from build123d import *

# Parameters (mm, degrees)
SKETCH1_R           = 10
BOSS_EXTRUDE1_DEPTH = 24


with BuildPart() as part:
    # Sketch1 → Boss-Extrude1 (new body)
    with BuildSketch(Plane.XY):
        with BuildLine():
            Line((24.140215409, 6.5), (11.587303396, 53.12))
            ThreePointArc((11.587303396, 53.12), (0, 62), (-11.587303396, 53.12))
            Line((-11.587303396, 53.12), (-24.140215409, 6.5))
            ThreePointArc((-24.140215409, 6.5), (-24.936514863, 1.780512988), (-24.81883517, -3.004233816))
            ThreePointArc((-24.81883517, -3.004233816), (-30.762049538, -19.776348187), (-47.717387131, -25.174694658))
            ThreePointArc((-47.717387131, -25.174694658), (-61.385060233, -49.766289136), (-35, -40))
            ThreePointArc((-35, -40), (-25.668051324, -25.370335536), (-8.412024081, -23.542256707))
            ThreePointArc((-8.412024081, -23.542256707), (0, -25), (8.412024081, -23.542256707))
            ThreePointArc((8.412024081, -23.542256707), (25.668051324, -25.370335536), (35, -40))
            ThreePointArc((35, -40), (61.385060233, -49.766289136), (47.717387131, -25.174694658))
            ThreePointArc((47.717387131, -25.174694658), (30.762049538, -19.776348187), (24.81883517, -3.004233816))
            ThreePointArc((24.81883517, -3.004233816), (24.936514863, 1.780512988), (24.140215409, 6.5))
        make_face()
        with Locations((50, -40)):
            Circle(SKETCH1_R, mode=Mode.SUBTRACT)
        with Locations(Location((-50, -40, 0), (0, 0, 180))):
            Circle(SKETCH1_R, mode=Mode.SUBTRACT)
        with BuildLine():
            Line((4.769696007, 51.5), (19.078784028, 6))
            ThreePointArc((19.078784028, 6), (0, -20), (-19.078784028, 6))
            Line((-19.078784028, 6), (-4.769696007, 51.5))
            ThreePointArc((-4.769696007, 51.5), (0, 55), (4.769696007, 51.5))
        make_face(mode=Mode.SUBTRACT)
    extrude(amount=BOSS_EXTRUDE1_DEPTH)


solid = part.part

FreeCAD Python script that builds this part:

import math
import FreeCAD as App
import Part
import Sketcher

V = App.Vector
Q = App.Units.Quantity

doc = App.newDocument("Part")
body = doc.addObject("PartDesign::Body", "Body")

# Sketch on XY plane
sketch1 = body.newObject("Sketcher::SketchObject", "Sketch")
sketch1.AttachmentSupport = (doc.getObject("XY_Plane"), [""])
sketch1.MapMode = "FlatFace"
sketch1.addGeometry([
    Part.LineSegment(V(24.140215, 6.5, 0), V(11.587303, 53.12, 0)),  # 0
    Part.ArcOfCircle(Part.Circle(V(0, 50, 0), V(0, 0, 1), 12), math.radians(15.070062), math.radians(164.929938)),  # 1
    Part.LineSegment(V(-11.587303, 53.12, 0), V(-24.140215, 6.5, 0)),  # 2
    Part.ArcOfCircle(Part.Circle(V(0, 0, 0), V(0, 0, 1), 25), math.radians(164.929938), math.radians(186.901876)),  # 3
    Part.ArcOfCircle(Part.Circle(V(-44.673903, -5.407621, 0), V(0, 0, 1), 20), math.radians(-98.752945), math.radians(6.901876)),  # 4
    Part.ArcOfCircle(Part.Circle(V(-50, -40, 0), V(0, 0, 1), 15), math.radians(81.247055), math.radians(360)),  # 5
    Part.ArcOfCircle(Part.Circle(V(-15.141643, -42.376062, 0), V(0, 0, 1), 20), math.radians(70.33738), math.radians(173.176969)),  # 6
    Part.ArcOfCircle(Part.Circle(V(0, 0, 0), V(0, 0, 1), 25), math.radians(-109.66262), math.radians(-70.33738)),  # 7
    Part.ArcOfCircle(Part.Circle(V(15.141643, -42.376062, 0), V(0, 0, 1), 20), math.radians(6.823031), math.radians(109.66262)),  # 8
    Part.ArcOfCircle(Part.Circle(V(50, -40, 0), V(0, 0, 1), 15), math.radians(180), math.radians(458.752945)),  # 9
    Part.ArcOfCircle(Part.Circle(V(44.673903, -5.407621, 0), V(0, 0, 1), 20), math.radians(173.098124), math.radians(278.752945)),  # 10
    Part.ArcOfCircle(Part.Circle(V(0, 0, 0), V(0, 0, 1), 25), math.radians(-6.901876), math.radians(15.070062)),  # 11
    Part.Circle(V(-50, -40, 0), V(0, 0, 1), 10),  # 12
    Part.Circle(V(50, -40, 0), V(0, 0, 1), 10),  # 13
    Part.ArcOfCircle(Part.Circle(V(0, 50, 0), V(0, 0, 1), 5), math.radians(17.457603), math.radians(162.542397)),  # 14
    Part.LineSegment(V(4.769696, 51.5, 0), V(19.078784, 6, 0)),  # 15
    Part.ArcOfCircle(Part.Circle(V(0, 0, 0), V(0, 0, 1), 20), math.radians(162.542397), math.radians(377.457603)),  # 16
    Part.LineSegment(V(-19.078784, 6, 0), V(-4.769696, 51.5, 0)),  # 17
], False)
sketch1.addConstraint([
    Sketcher.Constraint("Tangent", 0, 2, 1, 1),
    Sketcher.Constraint("Tangent", 1, 2, 2, 1),
    Sketcher.Constraint("Tangent", 2, 2, 3, 1),
    Sketcher.Constraint("Tangent", 3, 2, 4, 2),
    Sketcher.Constraint("Tangent", 4, 1, 5, 1),
    Sketcher.Constraint("Coincident", 5, 2, 6, 2),
    Sketcher.Constraint("Tangent", 6, 1, 7, 1),
    Sketcher.Constraint("Tangent", 7, 2, 8, 2),
    Sketcher.Constraint("Coincident", 8, 1, 9, 1),
    Sketcher.Constraint("Tangent", 9, 2, 10, 2),
    Sketcher.Constraint("Tangent", 10, 1, 11, 1),
    Sketcher.Constraint("Tangent", 11, 2, 0, 1),
    Sketcher.Constraint("Tangent", 14, 1, 15, 1),
    Sketcher.Constraint("Tangent", 15, 2, 16, 2),
    Sketcher.Constraint("Tangent", 16, 1, 17, 1),
    Sketcher.Constraint("Tangent", 17, 2, 14, 2),
    Sketcher.Constraint("Coincident", 3, 3, -1, 1),
    Sketcher.Constraint("Coincident", 7, 3, -1, 1),
    Sketcher.Constraint("Coincident", 11, 3, -1, 1),
    Sketcher.Constraint("Coincident", 16, 3, -1, 1),
    Sketcher.Constraint("Coincident", 12, 3, 5, 3),
    Sketcher.Constraint("Coincident", 13, 3, 9, 3),
    Sketcher.Constraint("Coincident", 14, 3, 1, 3),
    Sketcher.Constraint("Equal", 4, 6),
    Sketcher.Constraint("Equal", 3, 7),
    Sketcher.Constraint("Equal", 6, 8),
    Sketcher.Constraint("Equal", 5, 9),
    Sketcher.Constraint("Equal", 8, 10),
    Sketcher.Constraint("Equal", 7, 11),
    Sketcher.Constraint("Equal", 12, 13),
    Sketcher.Constraint("Equal", 10, 16),
    Sketcher.Constraint("Symmetric", 5, 3, 9, 3, -2),
    Sketcher.Constraint("PointOnObject", 1, 3, -2),
    Sketcher.Constraint("Horizontal", 6, 3, 8, 3),
    Sketcher.Constraint("Horizontal", 13, 3, 5, 2),
    Sketcher.Constraint("Diameter", 12, Q("20 mm")),
    Sketcher.Constraint("Radius", 1, Q("12 mm")),
    Sketcher.Constraint("Radius", 3, Q("25 mm")),
    Sketcher.Constraint("Radius", 4, Q("20 mm")),
    Sketcher.Constraint("Radius", 5, Q("15 mm")),
    Sketcher.Constraint("Radius", 14, Q("5 mm")),
    Sketcher.Constraint("DistanceY", -1, 1, 1, 3, Q("50 mm")),
    Sketcher.Constraint("DistanceX", 5, 3, -1, 1, Q("50 mm")),
    Sketcher.Constraint("DistanceY", 5, 3, -1, 1, Q("40 mm")),
])
pad1 = body.newObject("PartDesign::Pad", "Pad")
pad1.Profile = sketch1
pad1.Length = 24

doc.recompute()
